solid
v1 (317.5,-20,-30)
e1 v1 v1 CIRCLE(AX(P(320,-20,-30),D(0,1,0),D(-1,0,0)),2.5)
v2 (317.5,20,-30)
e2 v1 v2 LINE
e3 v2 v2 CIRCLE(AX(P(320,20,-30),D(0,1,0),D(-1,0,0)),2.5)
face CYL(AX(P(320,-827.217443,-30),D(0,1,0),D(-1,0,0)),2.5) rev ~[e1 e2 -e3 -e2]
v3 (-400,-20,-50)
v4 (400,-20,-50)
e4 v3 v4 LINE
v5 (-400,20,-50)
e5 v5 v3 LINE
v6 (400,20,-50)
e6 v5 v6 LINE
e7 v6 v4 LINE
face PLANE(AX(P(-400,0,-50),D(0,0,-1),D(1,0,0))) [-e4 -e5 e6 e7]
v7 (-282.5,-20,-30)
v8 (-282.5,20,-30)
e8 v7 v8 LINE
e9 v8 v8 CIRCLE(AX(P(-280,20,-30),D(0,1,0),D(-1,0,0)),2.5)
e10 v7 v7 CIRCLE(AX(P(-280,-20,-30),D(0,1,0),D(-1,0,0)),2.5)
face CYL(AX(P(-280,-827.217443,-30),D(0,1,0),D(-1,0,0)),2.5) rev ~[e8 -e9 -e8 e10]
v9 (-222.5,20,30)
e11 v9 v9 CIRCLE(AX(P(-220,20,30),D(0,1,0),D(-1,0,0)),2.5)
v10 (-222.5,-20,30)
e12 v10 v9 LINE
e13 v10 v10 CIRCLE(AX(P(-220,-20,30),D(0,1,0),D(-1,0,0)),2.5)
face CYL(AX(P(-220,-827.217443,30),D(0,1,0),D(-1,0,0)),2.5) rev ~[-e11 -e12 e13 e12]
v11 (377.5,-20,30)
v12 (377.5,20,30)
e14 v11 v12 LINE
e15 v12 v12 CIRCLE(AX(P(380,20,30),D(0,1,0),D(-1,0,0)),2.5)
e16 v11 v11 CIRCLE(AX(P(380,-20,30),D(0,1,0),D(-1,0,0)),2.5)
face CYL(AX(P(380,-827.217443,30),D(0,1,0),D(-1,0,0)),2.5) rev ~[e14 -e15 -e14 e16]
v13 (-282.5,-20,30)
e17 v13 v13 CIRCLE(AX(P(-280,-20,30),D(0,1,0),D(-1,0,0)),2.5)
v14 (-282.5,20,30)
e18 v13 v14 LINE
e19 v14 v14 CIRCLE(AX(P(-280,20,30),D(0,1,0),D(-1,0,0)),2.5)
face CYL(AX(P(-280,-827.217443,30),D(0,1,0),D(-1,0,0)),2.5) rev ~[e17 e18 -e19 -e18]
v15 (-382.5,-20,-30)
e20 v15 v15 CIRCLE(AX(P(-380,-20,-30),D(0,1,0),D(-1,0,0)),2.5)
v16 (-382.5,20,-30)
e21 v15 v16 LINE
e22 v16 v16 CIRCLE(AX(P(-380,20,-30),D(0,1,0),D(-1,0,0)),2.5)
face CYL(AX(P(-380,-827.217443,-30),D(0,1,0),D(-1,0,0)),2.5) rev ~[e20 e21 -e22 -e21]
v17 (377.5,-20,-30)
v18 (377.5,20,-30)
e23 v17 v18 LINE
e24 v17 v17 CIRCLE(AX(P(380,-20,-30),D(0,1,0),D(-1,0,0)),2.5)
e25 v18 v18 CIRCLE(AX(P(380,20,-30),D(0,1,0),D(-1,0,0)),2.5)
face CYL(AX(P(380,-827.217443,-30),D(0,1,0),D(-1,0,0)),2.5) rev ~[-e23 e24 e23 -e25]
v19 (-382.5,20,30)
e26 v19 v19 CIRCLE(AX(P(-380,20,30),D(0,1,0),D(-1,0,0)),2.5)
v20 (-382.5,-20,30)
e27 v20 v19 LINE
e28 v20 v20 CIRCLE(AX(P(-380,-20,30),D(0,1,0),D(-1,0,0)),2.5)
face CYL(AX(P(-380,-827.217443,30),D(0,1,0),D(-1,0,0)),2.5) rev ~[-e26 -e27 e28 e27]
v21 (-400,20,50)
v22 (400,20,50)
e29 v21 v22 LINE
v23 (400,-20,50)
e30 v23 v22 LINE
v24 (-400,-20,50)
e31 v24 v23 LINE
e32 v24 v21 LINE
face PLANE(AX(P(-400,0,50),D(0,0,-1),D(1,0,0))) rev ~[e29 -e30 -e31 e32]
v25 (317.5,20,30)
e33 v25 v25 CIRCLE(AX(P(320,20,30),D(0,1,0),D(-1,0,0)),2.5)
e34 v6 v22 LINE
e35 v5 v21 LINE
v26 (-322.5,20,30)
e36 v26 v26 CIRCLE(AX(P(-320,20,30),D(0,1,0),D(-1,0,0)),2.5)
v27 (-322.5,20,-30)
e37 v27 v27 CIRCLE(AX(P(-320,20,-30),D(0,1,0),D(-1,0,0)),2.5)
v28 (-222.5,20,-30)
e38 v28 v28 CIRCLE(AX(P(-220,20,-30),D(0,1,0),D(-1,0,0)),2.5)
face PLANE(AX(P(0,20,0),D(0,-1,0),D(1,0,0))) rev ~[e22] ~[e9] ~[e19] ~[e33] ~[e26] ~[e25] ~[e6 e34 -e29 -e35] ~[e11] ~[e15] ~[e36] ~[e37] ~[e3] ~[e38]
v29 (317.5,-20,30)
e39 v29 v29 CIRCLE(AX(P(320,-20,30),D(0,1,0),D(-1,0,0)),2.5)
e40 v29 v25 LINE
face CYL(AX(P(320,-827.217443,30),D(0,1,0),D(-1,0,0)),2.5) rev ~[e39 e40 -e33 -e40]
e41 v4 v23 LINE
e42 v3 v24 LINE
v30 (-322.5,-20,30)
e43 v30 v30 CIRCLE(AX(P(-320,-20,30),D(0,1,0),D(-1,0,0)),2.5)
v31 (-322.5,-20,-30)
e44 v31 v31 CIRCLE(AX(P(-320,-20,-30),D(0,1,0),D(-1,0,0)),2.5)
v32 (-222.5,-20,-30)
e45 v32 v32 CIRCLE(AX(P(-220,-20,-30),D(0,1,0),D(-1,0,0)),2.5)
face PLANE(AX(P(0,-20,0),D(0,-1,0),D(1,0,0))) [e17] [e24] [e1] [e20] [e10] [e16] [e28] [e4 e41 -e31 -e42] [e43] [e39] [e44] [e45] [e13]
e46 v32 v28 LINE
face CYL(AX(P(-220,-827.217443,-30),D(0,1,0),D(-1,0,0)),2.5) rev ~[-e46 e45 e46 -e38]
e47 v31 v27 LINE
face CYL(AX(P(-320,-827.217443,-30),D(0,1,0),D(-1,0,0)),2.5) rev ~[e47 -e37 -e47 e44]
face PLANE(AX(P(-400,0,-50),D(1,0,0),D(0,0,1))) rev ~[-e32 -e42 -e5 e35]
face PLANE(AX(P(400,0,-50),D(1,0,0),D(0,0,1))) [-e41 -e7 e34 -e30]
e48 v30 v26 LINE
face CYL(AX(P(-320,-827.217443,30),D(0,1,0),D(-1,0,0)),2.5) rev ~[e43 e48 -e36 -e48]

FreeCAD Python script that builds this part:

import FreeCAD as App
import Part
import Sketcher

doc = App.newDocument("Part")
body = doc.addObject("PartDesign::Body", "Body")

# Sketch on XZ plane
sketch1 = body.newObject("Sketcher::SketchObject", "Sketch")
sketch1.AttachmentSupport = (doc.getObject("XZ_Plane"), [""])
sketch1.MapMode = "FlatFace"
sketch1.addGeometry(Part.LineSegment(App.Vector(-400, 50, 0), App.Vector(-400, -50, 0)), False)
sketch1.addGeometry(Part.LineSegment(App.Vector(-400, -50, 0), App.Vector(400, -50, 0)), False)
sketch1.addGeometry(Part.LineSegment(App.Vector(400, -50, 0), App.Vector(400, 50, 0)), False)
sketch1.addGeometry(Part.LineSegment(App.Vector(400, 50, 0), App.Vector(-400, 50, 0)), False)
sketch1.addConstraint(Sketcher.Constraint("Coincident", 0, 2, 1, 1))
sketch1.addConstraint(Sketcher.Constraint("Coincident", 1, 2, 2, 1))
sketch1.addConstraint(Sketcher.Constraint("Coincident", 2, 2, 3, 1))
sketch1.addConstraint(Sketcher.Constraint("Coincident", 3, 2, 0, 1))
sketch1.addConstraint(Sketcher.Constraint("Vertical", 0))
sketch1.addConstraint(Sketcher.Constraint("Horizontal", 1))
sketch1.addConstraint(Sketcher.Constraint("Vertical", 2))
sketch1.addConstraint(Sketcher.Constraint("Horizontal", 3))
sketch1.addConstraint(Sketcher.Constraint("Symmetric", 0, 2, 2, 2, -1, 1))
sketch1.addConstraint(Sketcher.Constraint("DistanceX", 1, 1, 1, 2, 800.0))
sketch1.addConstraint(Sketcher.Constraint("DistanceY", 0, 2, 0, 1, 100.0))
pad1 = body.newObject("PartDesign::Pad", "Pad")
pad1.Profile = sketch1
pad1.Length = 40
pad1.Midplane = True

# Sketch on XZ plane
sketch2 = body.newObject("Sketcher::SketchObject", "Sketch001")
sketch2.AttachmentSupport = (doc.getObject("XZ_Plane"), [""])
sketch2.MapMode = "FlatFace"
sketch2.AttachmentOffset = App.Placement(App.Vector(0, 0, 20), App.Rotation())
sketch2.addGeometry(Part.Circle(App.Vector(-380, 30, 0), App.Vector(0, 0, 1), 2.5), False)
sketch2.addGeometry(Part.Circle(App.Vector(-380, -30, 0), App.Vector(0, 0, 1), 2.5), False)
sketch2.addGeometry(Part.Circle(App.Vector(-320, 30, 0), App.Vector(0, 0, 1), 2.5), False)
sketch2.addGeometry(Part.Circle(App.Vector(-320, -30, 0), App.Vector(0, 0, 1), 2.5), False)
sketch2.addGeometry(Part.Circle(App.Vector(-280, 30, 0), App.Vector(0, 0, 1), 2.5), False)
sketch2.addGeometry(Part.Circle(App.Vector(-280, -30, 0), App.Vector(0, 0, 1), 2.5), False)
sketch2.addGeometry(Part.Circle(App.Vector(-220, -30, 0), App.Vector(0, 0, 1), 2.5), False)
sketch2.addGeometry(Part.Circle(App.Vector(-220, 30, 0), App.Vector(0, 0, 1), 2.5), False)
sketch2.addGeometry(Part.Circle(App.Vector(380, 30, 0), App.Vector(0, 0, 1), 2.5), False)
sketch2.addGeometry(Part.Circle(App.Vector(320, 30, 0), App.Vector(0, 0, 1), 2.5), False)
sketch2.addGeometry(Part.Circle(App.Vector(320, -30, 0), App.Vector(0, 0, 1), 2.5), False)
sketch2.addGeometry(Part.Circle(App.Vector(380, -30, 0), App.Vector(0, 0, 1), 2.5), False)
sketch2.addConstraint(Sketcher.Constraint("Equal", 0, 1))
sketch2.addConstraint(Sketcher.Constraint("Equal", 1, 2))
sketch2.addConstraint(Sketcher.Constraint("Equal", 2, 3))
sketch2.addConstraint(Sketcher.Constraint("Equal", 3, 4))
sketch2.addConstraint(Sketcher.Constraint("Equal", 4, 5))
sketch2.addConstraint(Sketcher.Constraint("Equal", 5, 6))
sketch2.addConstraint(Sketcher.Constraint("Equal", 6, 7))
sketch2.addConstraint(Sketcher.Constraint("Equal", 7, 8))
sketch2.addConstraint(Sketcher.Constraint("Equal", 8, 9))
sketch2.addConstraint(Sketcher.Constraint("Equal", 9, 10))
sketch2.addConstraint(Sketcher.Constraint("Equal", 10, 11))
sketch2.addConstraint(Sketcher.Constraint("Symmetric", 1, 3, 8, 3, -1, 1))
sketch2.addConstraint(Sketcher.Constraint("Symmetric", 3, 3, 9, 3, -1, 1))
sketch2.addConstraint(Sketcher.Constraint("Symmetric", 2, 3, 10, 3, -1, 1))
sketch2.addConstraint(Sketcher.Constraint("Symmetric", 0, 3, 11, 3, -1, 1))
sketch2.addConstraint(Sketcher.Constraint("Symmetric", 0, 3, 8, 3, -2))
sketch2.addConstraint(Sketcher.Constraint("Symmetric", 2, 3, 9, 3, -2))
sketch2.addConstraint(Sketcher.Constraint("Symmetric", 4, 3, 5, 3, -1))
sketch2.addConstraint(Sketcher.Constraint("Symmetric", 6, 3, 7, 3, -1))
sketch2.addConstraint(Sketcher.Constraint("Horizontal", 0, 3, 2, 3))
sketch2.addConstraint(Sketcher.Constraint("Horizontal", 2, 3, 4, 3))
sketch2.addConstraint(Sketcher.Constraint("Horizontal", 5, 3, 6, 3))
sketch2.addConstraint(Sketcher.Constraint("Diameter", 0, 5.0))
sketch2.addConstraint(Sketcher.Constraint("DistanceX", 0, 3, -1, 1, 380.0))
sketch2.addConstraint(Sketcher.Constraint("DistanceY", -1, 1, 0, 3, 30.0))
sketch2.addConstraint(Sketcher.Constraint("DistanceX", 2, 3, -1, 1, 320.0))
sketch2.addConstraint(Sketcher.Constraint("DistanceX", 4, 3, -1, 1, 280.0))
sketch2.addConstraint(Sketcher.Constraint("DistanceX", 6, 3, -1, 1, 220.0))
doc.recompute()
hole = body.newObject("PartDesign::Hole", "Hole")
hole.Profile = sketch2
hole.ThreadType = "None"
hole.Diameter = 5
hole.DepthType = "ThroughAll"

doc.recompute()
